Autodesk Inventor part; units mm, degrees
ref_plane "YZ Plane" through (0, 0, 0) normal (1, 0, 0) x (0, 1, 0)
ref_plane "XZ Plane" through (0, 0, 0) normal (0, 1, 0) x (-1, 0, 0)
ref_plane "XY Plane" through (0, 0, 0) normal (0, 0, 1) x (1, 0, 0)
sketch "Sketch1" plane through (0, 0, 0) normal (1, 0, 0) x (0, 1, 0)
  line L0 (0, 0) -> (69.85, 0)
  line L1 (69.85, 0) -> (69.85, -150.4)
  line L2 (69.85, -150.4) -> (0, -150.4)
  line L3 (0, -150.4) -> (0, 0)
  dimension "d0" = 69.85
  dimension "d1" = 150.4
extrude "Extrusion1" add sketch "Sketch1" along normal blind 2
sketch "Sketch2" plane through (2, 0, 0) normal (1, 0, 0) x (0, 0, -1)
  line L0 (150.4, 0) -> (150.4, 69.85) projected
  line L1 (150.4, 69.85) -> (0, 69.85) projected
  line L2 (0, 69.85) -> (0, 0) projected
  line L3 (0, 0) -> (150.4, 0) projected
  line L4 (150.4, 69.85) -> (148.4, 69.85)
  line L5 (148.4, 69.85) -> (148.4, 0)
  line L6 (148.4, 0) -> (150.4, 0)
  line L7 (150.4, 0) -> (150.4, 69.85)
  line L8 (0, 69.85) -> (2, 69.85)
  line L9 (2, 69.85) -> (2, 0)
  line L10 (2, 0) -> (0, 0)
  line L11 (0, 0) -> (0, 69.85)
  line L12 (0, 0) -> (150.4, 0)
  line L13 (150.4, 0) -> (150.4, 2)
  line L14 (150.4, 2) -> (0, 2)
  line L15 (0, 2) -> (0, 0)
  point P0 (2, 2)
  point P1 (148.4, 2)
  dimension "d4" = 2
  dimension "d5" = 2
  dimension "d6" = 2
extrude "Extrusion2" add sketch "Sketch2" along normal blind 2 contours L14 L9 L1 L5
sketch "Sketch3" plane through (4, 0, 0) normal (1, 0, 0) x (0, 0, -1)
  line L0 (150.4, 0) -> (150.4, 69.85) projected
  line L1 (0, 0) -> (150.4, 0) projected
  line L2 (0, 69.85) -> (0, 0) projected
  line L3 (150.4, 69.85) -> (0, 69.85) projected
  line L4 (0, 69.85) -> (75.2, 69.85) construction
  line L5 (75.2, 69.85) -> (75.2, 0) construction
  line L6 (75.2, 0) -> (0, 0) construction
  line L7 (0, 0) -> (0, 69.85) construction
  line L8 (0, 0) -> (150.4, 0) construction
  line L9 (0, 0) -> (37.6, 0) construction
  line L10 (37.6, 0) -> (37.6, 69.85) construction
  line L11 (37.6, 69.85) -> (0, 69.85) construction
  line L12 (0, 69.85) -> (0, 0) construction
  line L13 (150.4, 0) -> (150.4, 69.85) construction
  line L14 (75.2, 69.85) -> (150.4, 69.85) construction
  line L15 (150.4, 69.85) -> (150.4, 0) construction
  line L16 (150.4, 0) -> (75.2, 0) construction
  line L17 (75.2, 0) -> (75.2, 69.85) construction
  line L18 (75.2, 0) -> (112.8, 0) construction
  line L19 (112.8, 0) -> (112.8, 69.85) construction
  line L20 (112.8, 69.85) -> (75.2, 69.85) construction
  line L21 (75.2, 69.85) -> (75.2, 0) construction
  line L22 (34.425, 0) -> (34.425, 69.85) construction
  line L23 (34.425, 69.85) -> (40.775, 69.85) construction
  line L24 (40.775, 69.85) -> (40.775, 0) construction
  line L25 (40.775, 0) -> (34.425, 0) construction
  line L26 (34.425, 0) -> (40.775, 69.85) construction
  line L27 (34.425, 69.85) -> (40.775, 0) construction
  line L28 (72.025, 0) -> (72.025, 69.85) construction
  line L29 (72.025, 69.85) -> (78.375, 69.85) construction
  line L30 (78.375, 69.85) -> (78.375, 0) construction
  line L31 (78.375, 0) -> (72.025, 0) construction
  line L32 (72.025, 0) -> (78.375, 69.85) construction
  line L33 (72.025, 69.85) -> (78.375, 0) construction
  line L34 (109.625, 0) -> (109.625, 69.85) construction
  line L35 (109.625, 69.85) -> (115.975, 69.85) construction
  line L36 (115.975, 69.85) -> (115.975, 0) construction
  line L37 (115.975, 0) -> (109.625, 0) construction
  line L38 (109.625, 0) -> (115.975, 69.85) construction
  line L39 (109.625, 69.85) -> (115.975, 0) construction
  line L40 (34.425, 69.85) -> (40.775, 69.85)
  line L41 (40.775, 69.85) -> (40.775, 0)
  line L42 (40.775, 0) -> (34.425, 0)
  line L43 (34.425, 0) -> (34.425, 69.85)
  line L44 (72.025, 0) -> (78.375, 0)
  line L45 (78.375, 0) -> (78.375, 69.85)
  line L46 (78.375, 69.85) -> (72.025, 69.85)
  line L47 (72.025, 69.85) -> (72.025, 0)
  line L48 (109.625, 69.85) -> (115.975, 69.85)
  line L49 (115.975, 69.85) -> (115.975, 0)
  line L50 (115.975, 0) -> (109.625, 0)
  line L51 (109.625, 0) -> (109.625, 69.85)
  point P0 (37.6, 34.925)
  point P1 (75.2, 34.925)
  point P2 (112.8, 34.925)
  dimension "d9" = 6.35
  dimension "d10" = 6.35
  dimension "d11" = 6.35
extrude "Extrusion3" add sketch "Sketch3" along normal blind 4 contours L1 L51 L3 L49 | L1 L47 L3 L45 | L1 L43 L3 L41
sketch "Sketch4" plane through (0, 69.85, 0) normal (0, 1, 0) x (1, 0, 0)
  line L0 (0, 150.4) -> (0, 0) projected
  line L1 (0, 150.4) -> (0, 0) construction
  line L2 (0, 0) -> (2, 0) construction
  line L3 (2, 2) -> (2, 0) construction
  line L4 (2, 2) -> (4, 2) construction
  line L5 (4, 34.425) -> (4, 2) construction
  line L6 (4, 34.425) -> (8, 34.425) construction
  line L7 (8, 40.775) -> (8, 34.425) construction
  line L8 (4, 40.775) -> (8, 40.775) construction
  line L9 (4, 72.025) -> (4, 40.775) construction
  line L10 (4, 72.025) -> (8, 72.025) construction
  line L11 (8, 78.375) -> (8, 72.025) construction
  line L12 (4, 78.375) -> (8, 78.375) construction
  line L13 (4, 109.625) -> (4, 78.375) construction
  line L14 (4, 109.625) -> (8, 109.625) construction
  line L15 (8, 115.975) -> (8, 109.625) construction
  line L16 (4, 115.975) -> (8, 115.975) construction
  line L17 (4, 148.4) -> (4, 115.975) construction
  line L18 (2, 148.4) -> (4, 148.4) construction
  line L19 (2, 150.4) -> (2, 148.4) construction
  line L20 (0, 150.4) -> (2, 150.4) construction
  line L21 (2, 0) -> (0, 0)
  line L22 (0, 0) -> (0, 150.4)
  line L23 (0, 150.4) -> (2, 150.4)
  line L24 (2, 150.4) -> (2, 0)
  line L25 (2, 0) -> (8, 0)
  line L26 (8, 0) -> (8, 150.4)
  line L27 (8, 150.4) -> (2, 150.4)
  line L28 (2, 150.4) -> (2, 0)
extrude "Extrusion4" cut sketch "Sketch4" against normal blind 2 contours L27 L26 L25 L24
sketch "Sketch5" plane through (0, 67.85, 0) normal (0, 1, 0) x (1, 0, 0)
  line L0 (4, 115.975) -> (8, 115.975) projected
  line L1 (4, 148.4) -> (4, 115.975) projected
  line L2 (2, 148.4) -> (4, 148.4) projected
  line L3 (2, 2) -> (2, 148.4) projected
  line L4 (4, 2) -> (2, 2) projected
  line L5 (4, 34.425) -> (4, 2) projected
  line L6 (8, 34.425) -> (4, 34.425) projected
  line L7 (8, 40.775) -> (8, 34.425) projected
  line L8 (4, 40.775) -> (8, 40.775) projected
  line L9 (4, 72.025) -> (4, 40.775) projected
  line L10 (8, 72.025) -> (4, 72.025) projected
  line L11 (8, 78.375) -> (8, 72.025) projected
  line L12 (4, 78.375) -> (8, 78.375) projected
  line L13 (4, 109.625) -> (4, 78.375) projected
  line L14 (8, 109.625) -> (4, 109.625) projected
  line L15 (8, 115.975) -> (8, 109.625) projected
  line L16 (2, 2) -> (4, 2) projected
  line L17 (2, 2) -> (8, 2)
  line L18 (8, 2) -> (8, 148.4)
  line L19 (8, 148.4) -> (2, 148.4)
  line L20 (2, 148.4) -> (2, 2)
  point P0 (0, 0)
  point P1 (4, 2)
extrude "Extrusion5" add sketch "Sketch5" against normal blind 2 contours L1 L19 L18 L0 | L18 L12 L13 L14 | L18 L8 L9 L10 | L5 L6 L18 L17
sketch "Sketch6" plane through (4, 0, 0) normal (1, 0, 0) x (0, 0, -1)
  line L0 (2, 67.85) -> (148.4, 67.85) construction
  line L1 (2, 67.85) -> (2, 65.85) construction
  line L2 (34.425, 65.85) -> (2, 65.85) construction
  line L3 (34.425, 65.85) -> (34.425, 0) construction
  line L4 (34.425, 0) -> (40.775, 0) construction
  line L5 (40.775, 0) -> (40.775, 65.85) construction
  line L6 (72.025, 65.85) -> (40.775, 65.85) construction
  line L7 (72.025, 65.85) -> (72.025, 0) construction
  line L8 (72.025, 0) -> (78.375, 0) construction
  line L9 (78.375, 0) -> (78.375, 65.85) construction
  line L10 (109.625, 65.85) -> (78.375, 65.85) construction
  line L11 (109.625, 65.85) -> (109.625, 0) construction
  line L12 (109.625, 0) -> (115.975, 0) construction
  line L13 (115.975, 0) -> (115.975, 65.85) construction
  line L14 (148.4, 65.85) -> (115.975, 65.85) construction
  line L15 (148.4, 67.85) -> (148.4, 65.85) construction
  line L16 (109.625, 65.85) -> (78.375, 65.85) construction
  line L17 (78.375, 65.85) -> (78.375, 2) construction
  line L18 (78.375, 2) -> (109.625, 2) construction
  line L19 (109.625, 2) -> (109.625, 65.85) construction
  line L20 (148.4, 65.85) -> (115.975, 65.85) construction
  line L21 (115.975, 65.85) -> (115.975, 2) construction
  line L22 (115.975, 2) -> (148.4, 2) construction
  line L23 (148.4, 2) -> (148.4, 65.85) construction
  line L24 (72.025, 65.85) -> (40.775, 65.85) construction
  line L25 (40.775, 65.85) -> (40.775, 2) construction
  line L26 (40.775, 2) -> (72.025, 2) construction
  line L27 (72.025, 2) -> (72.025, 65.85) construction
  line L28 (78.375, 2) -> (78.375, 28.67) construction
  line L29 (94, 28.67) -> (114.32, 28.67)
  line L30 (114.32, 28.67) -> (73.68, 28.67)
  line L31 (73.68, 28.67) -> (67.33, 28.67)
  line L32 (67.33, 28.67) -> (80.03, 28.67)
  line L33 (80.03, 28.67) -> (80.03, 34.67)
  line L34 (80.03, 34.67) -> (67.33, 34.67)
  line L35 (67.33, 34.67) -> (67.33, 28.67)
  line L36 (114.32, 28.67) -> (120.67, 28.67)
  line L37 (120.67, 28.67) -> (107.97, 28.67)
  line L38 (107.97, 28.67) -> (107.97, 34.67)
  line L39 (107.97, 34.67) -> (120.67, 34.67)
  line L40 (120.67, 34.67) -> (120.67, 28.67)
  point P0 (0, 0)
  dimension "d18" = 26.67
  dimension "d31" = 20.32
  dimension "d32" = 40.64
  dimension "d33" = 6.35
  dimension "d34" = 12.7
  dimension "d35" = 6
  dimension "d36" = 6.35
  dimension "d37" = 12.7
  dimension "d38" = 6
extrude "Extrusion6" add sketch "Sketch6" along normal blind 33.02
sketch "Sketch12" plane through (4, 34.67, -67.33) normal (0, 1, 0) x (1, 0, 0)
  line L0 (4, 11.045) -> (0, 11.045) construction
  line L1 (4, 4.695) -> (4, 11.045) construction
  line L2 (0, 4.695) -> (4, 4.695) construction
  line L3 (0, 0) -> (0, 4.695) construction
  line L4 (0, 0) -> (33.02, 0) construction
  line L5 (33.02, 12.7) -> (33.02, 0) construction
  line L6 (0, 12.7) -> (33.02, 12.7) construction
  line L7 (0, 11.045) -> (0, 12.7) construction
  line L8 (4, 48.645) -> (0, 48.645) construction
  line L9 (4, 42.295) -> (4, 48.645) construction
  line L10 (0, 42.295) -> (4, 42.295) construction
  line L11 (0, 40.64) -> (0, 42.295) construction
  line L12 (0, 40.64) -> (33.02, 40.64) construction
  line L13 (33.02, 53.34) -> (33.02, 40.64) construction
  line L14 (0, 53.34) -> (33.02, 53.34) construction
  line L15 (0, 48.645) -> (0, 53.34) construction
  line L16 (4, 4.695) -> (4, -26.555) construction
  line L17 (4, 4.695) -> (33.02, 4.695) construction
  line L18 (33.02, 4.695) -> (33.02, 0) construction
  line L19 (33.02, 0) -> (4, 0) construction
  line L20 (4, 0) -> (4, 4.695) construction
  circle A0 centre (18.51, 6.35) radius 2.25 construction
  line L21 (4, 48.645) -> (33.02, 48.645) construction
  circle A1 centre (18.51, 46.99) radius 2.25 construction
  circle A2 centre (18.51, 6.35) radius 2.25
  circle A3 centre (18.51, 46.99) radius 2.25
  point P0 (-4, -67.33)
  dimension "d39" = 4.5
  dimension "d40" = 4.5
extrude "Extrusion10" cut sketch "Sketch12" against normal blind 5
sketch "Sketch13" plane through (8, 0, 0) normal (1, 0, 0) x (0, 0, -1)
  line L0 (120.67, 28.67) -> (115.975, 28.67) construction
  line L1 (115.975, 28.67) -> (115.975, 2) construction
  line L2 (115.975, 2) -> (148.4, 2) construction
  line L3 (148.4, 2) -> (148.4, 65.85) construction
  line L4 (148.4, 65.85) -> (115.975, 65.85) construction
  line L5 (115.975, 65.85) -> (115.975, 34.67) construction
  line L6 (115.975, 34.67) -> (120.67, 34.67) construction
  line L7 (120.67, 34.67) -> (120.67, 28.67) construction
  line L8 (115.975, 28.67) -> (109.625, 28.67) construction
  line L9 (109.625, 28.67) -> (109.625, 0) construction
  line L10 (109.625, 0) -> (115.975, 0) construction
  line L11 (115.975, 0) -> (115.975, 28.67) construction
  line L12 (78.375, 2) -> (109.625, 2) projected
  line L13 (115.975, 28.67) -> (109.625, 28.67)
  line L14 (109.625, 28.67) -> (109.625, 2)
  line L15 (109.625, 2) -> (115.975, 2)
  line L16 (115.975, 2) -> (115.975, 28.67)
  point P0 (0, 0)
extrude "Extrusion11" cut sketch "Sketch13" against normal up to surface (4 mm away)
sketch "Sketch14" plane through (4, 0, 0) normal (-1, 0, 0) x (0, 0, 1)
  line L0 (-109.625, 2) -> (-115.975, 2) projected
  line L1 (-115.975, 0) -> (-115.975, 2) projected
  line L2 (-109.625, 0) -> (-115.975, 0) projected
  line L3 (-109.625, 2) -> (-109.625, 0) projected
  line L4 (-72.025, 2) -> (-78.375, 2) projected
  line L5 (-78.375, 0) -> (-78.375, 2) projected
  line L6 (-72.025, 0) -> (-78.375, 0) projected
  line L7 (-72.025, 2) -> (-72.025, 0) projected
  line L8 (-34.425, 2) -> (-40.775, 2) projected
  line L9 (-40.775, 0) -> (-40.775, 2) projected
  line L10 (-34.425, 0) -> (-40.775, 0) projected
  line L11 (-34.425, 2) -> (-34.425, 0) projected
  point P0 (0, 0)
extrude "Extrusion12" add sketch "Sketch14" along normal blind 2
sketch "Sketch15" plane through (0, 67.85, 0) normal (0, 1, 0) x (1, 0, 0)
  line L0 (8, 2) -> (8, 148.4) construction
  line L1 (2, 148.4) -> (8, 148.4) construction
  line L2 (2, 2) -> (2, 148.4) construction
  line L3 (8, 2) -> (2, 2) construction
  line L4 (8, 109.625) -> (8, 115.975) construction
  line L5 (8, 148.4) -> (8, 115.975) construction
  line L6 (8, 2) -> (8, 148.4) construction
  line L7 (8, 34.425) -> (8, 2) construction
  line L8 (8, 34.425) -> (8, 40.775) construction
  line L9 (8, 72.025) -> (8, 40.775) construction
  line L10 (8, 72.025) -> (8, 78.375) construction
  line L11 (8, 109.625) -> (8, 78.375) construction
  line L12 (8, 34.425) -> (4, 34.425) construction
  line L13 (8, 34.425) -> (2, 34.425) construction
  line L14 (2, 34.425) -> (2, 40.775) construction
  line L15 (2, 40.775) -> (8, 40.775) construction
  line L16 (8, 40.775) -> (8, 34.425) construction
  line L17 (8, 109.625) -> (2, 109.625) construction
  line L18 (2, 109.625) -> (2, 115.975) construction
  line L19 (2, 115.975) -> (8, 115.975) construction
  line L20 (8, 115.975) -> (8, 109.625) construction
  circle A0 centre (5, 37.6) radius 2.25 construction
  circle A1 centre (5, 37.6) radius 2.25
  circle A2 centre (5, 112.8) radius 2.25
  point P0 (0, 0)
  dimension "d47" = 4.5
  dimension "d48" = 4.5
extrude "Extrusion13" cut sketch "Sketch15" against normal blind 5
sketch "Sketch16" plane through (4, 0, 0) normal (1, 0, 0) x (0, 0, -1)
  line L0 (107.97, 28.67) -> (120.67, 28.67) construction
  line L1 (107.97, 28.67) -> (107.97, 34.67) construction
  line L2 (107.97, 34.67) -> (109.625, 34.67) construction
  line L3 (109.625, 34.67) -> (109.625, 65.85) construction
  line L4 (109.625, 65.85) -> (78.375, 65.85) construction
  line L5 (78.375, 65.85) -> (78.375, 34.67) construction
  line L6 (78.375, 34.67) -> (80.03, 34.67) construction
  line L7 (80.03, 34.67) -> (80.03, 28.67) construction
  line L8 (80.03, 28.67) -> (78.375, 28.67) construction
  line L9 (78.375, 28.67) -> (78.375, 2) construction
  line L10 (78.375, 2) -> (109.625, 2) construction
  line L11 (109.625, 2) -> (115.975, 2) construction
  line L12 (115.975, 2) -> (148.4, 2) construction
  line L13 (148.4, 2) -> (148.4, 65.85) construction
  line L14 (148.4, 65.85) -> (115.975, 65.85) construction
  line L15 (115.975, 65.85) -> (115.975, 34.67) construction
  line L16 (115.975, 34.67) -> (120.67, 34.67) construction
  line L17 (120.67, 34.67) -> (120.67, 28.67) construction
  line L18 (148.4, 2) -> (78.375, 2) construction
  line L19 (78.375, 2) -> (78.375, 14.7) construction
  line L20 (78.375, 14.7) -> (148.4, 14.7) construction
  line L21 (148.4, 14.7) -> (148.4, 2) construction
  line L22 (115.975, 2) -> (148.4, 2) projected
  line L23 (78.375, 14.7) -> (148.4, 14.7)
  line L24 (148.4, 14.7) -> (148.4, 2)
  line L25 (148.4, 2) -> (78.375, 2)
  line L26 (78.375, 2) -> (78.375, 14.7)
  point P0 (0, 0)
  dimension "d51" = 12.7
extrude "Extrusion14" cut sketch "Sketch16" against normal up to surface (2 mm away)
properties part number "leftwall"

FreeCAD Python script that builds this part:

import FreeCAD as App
import Part
import Sketcher

V = App.Vector
Q = App.Units.Quantity

doc = App.newDocument("Part")
body = doc.addObject("PartDesign::Body", "Body")
body.AllowCompound = True

# Sketch on YZ plane
sketch1 = body.newObject("Sketcher::SketchObject", "Sketch")
sketch1.AttachmentSupport = (doc.getObject("YZ_Plane"), [""])
sketch1.MapMode = "FlatFace"
sketch1.addGeometry([
    Part.LineSegment(V(70, 0, 0), V(0, 0, 0)),
    Part.LineSegment(V(0, 0, 0), V(0, -150, 0)),
    Part.LineSegment(V(0, -150, 0), V(70, -150, 0)),
    Part.LineSegment(V(70, -150, 0), V(70, 0, 0)),
], False)
sketch1.addConstraint([
    Sketcher.Constraint("Coincident", 0, 2, 1, 1),
    Sketcher.Constraint("Coincident", 1, 2, 2, 1),
    Sketcher.Constraint("Coincident", 2, 2, 3, 1),
    Sketcher.Constraint("Coincident", 3, 2, 0, 1),
    Sketcher.Constraint("Horizontal", 0),
    Sketcher.Constraint("Vertical", 1),
    Sketcher.Constraint("Horizontal", 2),
    Sketcher.Constraint("Vertical", 3),
    Sketcher.Constraint("Coincident", 0, 2, -1, 1),
    Sketcher.Constraint("DistanceY", 1, 2, 1, 1, Q("150.4 mm")),
    Sketcher.Constraint("DistanceX", 0, 2, 0, 1, Q("69.85 mm")),
])
pad1 = body.newObject("PartDesign::Pad", "Pad")
pad1.Profile = sketch1
pad1.Length = 2

# Sketch on YZ plane
sketch2 = body.newObject("Sketcher::SketchObject", "Sketch001")
sketch2.AttachmentSupport = (doc.getObject("YZ_Plane"), [""])
sketch2.MapMode = "FlatFace"
sketch2.AttachmentOffset = App.Placement(V(0, 0, 2), App.Rotation())
sketch2.addGeometry([
    Part.LineSegment(V(2, -2, 0), V(2, -148, 0)),
    Part.LineSegment(V(2, -148, 0), V(70, -148, 0)),
    Part.LineSegment(V(70, -148, 0), V(70, -2, 0)),
    Part.LineSegment(V(70, -2, 0), V(2, -2, 0)),
], False)
sketch2.addConstraint([
    Sketcher.Constraint("Coincident", 0, 2, 1, 1),
    Sketcher.Constraint("Coincident", 1, 2, 2, 1),
    Sketcher.Constraint("Coincident", 2, 2, 3, 1),
    Sketcher.Constraint("Coincident", 3, 2, 0, 1),
    Sketcher.Constraint("Vertical", 0),
    Sketcher.Constraint("Horizontal", 1),
    Sketcher.Constraint("Vertical", 2),
    Sketcher.Constraint("Horizontal", 3),
    Sketcher.Constraint("DistanceX", -1, 1, 0, 2, Q("2 mm")),
    Sketcher.Constraint("DistanceY", 2, 2, -1, 1, Q("2 mm")),
    Sketcher.Constraint("DistanceY", 0, 2, 0, 1, Q("146.4 mm")),
    Sketcher.Constraint("DistanceX", 1, 1, 1, 2, Q("67.85 mm")),
])
pad2 = body.newObject("PartDesign::Pad", "Pad001")
pad2.Profile = sketch2
pad2.Length = 2

# Sketch on YZ plane
sketch3 = body.newObject("Sketcher::SketchObject", "Sketch002")
sketch3.AttachmentSupport = (doc.getObject("YZ_Plane"), [""])
sketch3.MapMode = "FlatFace"
sketch3.AttachmentOffset = App.Placement(V(0, 0, 4), App.Rotation())
sketch3.addGeometry([
    Part.LineSegment(V(0, -110, 0), V(0, -116, 0)),  # 0
    Part.LineSegment(V(0, -116, 0), V(70, -116, 0)),  # 1
    Part.LineSegment(V(70, -116, 0), V(70, -110, 0)),  # 2
    Part.LineSegment(V(70, -110, 0), V(0, -110, 0)),  # 3
    Part.LineSegment(V(0, -72, 0), V(0, -78, 0)),  # 4
    Part.LineSegment(V(0, -78, 0), V(70, -78, 0)),  # 5
    Part.LineSegment(V(70, -78, 0), V(70, -72, 0)),  # 6
    Part.LineSegment(V(70, -72, 0), V(0, -72, 0)),  # 7
    Part.LineSegment(V(0, -34, 0), V(0, -41, 0)),  # 8
    Part.LineSegment(V(0, -41, 0), V(70, -41, 0)),  # 9
    Part.LineSegment(V(70, -41, 0), V(70, -34, 0)),  # 10
    Part.LineSegment(V(70, -34, 0), V(0, -34, 0)),  # 11
], False)
sketch3.addConstraint([
    Sketcher.Constraint("Coincident", 0, 2, 1, 1),
    Sketcher.Constraint("Coincident", 1, 2, 2, 1),
    Sketcher.Constraint("Coincident", 2, 2, 3, 1),
    Sketcher.Constraint("Coincident", 3, 2, 0, 1),
    Sketcher.Constraint("Coincident", 4, 2, 5, 1),
    Sketcher.Constraint("Coincident", 5, 2, 6, 1),
    Sketcher.Constraint("Coincident", 6, 2, 7, 1),
    Sketcher.Constraint("Coincident", 7, 2, 4, 1),
    Sketcher.Constraint("Coincident", 8, 2, 9, 1),
    Sketcher.Constraint("Coincident", 9, 2, 10, 1),
    Sketcher.Constraint("Coincident", 10, 2, 11, 1),
    Sketcher.Constraint("Coincident", 11, 2, 8, 1),
    Sketcher.Constraint("Vertical", 0),
    Sketcher.Constraint("Horizontal", 1),
    Sketcher.Constraint("Vertical", 2),
    Sketcher.Constraint("Horizontal", 3),
    Sketcher.Constraint("Vertical", 4),
    Sketcher.Constraint("Horizontal", 5),
    Sketcher.Constraint("Vertical", 6),
    Sketcher.Constraint("Horizontal", 7),
    Sketcher.Constraint("Vertical", 8),
    Sketcher.Constraint("Horizontal", 9),
    Sketcher.Constraint("Vertical", 10),
    Sketcher.Constraint("Horizontal", 11),
    Sketcher.Constraint("PointOnObject", 0, 2, -2),
    Sketcher.Constraint("PointOnObject", 4, 2, -2),
    Sketcher.Constraint("PointOnObject", 8, 2, -2),
    Sketcher.Constraint("Vertical", 2, 2, 5, 2),
    Sketcher.Constraint("Vertical", 6, 2, 9, 2),
    Sketcher.Constraint("Equal", 2, 4),
    Sketcher.Constraint("Equal", 6, 8),
    Sketcher.Constraint("DistanceY", 0, 2, 0, 1, Q("6.35 mm")),
    Sketcher.Constraint("DistanceX", 1, 1, 1, 2, Q("69.85 mm")),
    Sketcher.Constraint("DistanceY", 0, 2, 4, 2, Q("37.6 mm")),
    Sketcher.Constraint("DistanceY", 4, 2, 8, 2, Q("37.6 mm")),
    Sketcher.Constraint("DistanceY", 0, 2, -1, 1, Q("115.975 mm")),
])
pad3 = body.newObject("PartDesign::Pad", "Pad002")
pad3.Profile = sketch3
pad3.Length = 4

# Sketch on XZ plane
sketch4 = body.newObject("Sketcher::SketchObject", "Sketch003")
sketch4.AttachmentSupport = (doc.getObject("XZ_Plane"), [""])
sketch4.MapMode = "FlatFace"
sketch4.AttachmentOffset = App.Placement(V(0, 0, -69.85), App.Rotation())
sketch4.addGeometry([
    Part.LineSegment(V(8, -150, 0), V(2, -150, 0)),
    Part.LineSegment(V(2, -150, 0), V(2, 0, 0)),
    Part.LineSegment(V(2, 0, 0), V(8, 0, 0)),
    Part.LineSegment(V(8, 0, 0), V(8, -150, 0)),
], False)
sketch4.addConstraint([
    Sketcher.Constraint("Coincident", 0, 2, 1, 1),
    Sketcher.Constraint("Coincident", 1, 2, 2, 1),
    Sketcher.Constraint("Coincident", 2, 2, 3, 1),
    Sketcher.Constraint("Coincident", 3, 2, 0, 1),
    Sketcher.Constraint("Horizontal", 0),
    Sketcher.Constraint("Vertical", 1),
    Sketcher.Constraint("Horizontal", 2),
    Sketcher.Constraint("Vertical", 3),
    Sketcher.Constraint("PointOnObject", 1, 2, -1),
    Sketcher.Constraint("DistanceX", 0, 2, 0, 1, Q("6 mm")),
    Sketcher.Constraint("DistanceY", 1, 1, 1, 2, Q("150.4 mm")),
    Sketcher.Constraint("DistanceX", -1, 1, 0, 2, Q("2 mm")),
])
pocket1 = body.newObject("PartDesign::Pocket", "Pocket")
pocket1.Profile = sketch4
pocket1.Length = 2
pocket1.Reversed = True

# Sketch on XZ plane
sketch5 = body.newObject("Sketcher::SketchObject", "Sketch004")
sketch5.AttachmentSupport = (doc.getObject("XZ_Plane"), [""])
sketch5.MapMode = "FlatFace"
sketch5.AttachmentOffset = App.Placement(V(0, 0, -67.85), App.Rotation())
sketch5.addGeometry([
    Part.LineSegment(V(4, -148.4, 0), V(4, -116, 0)),  # 0
    Part.LineSegment(V(4, -116, 0), V(8, -116, 0)),  # 1
    Part.LineSegment(V(8, -116, 0), V(8, -148.4, 0)),  # 2
    Part.LineSegment(V(8, -148.4, 0), V(4, -148.4, 0)),  # 3
    Part.LineSegment(V(8, -78.4, 0), V(8, -109.6, 0)),  # 4
    Part.LineSegment(V(8, -109.6, 0), V(4, -109.6, 0)),  # 5
    Part.LineSegment(V(4, -109.6, 0), V(4, -78.4, 0)),  # 6
    Part.LineSegment(V(4, -78.4, 0), V(8, -78.4, 0)),  # 7
    Part.LineSegment(V(8, -40.8, 0), V(8, -72, 0)),  # 8
    Part.LineSegment(V(8, -72, 0), V(4, -72, 0)),  # 9
    Part.LineSegment(V(4, -72, 0), V(4, -40.8, 0)),  # 10
    Part.LineSegment(V(4, -40.8, 0), V(8, -40.8, 0)),  # 11
    Part.LineSegment(V(4, -34.4, 0), V(4, -2, 0)),  # 12
    Part.LineSegment(V(4, -2, 0), V(8, -2, 0)),  # 13
    Part.LineSegment(V(8, -2, 0), V(8, -34.4, 0)),  # 14
    Part.LineSegment(V(8, -34.4, 0), V(4, -34.4, 0)),  # 15
], False)
sketch5.addConstraint([
    Sketcher.Constraint("Coincident", 0, 2, 1, 1),
    Sketcher.Constraint("Coincident", 1, 2, 2, 1),
    Sketcher.Constraint("Coincident", 2, 2, 3, 1),
    Sketcher.Constraint("Coincident", 3, 2, 0, 1),
    Sketcher.Constraint("Coincident", 4, 2, 5, 1),
    Sketcher.Constraint("Coincident", 5, 2, 6, 1),
    Sketcher.Constraint("Coincident", 6, 2, 7, 1),
    Sketcher.Constraint("Coincident", 7, 2, 4, 1),
    Sketcher.Constraint("Coincident", 8, 2, 9, 1),
    Sketcher.Constraint("Coincident", 9, 2, 10, 1),
    Sketcher.Constraint("Coincident", 10, 2, 11, 1),
    Sketcher.Constraint("Coincident", 11, 2, 8, 1),
    Sketcher.Constraint("Coincident", 12, 2, 13, 1),
    Sketcher.Constraint("Coincident", 13, 2, 14, 1),
    Sketcher.Constraint("Coincident", 14, 2, 15, 1),
    Sketcher.Constraint("Coincident", 15, 2, 12, 1),
    Sketcher.Constraint("Vertical", 0),
    Sketcher.Constraint("Horizontal", 1),
    Sketcher.Constraint("Vertical", 2),
    Sketcher.Constraint("Horizontal", 3),
    Sketcher.Constraint("Vertical", 4),
    Sketcher.Constraint("Horizontal", 5),
    Sketcher.Constraint("Vertical", 6),
    Sketcher.Constraint("Horizontal", 7),
    Sketcher.Constraint("Vertical", 8),
    Sketcher.Constraint("Horizontal", 9),
    Sketcher.Constraint("Vertical", 10),
    Sketcher.Constraint("Horizontal", 11),
    Sketcher.Constraint("Vertical", 12),
    Sketcher.Constraint("Horizontal", 13),
    Sketcher.Constraint("Vertical", 14),
    Sketcher.Constraint("Horizontal", 15),
    Sketcher.Constraint("Vertical", 2, 2, 4, 2),
    Sketcher.Constraint("Vertical", 3, 2, 5, 2),
    Sketcher.Constraint("Vertical", 7, 2, 8, 2),
    Sketcher.Constraint("Vertical", 6, 2, 9, 2),
    Sketcher.Constraint("Vertical", 10, 2, 12, 2),
    Sketcher.Constraint("Vertical", 11, 2, 13, 2),
    Sketcher.Constraint("Equal", 6, 8),
    Sketcher.Constraint("Equal", 2, 12),
    Sketcher.Constraint("DistanceX", 1, 1, 1, 2, Q("4 mm")),
    Sketcher.Constraint("DistanceX", -1, 1, 0, 2, Q("4 mm")),
    Sketcher.Constraint("DistanceY", 12, 2, -1, 1, Q("2 mm")),
    Sketcher.Constraint("DistanceY", 4, 2, 4, 1, Q("31.25 mm")),
    Sketcher.Constraint("DistanceY", 2, 2, -1, 1, Q("148.4 mm")),
    Sketcher.Constraint("DistanceY", 0, 2, 6, 2, Q("37.6 mm")),
    Sketcher.Constraint("DistanceY", 4, 2, 8, 2, Q("37.6 mm")),
    Sketcher.Constraint("DistanceY", 8, 2, 14, 2, Q("37.6 mm")),
])
pad4 = body.newObject("PartDesign::Pad", "Pad003")
pad4.Profile = sketch5
pad4.Length = 2

# Sketch on YZ plane
sketch6 = body.newObject("Sketcher::SketchObject", "Sketch005")
sketch6.AttachmentSupport = (doc.getObject("YZ_Plane"), [""])
sketch6.MapMode = "FlatFace"
sketch6.AttachmentOffset = App.Placement(V(0, 0, 4), App.Rotation())
sketch6.addGeometry([
    Part.LineSegment(V(35, -108, 0), V(29, -108, 0)),  # 0
    Part.LineSegment(V(29, -108, 0), V(29, -121, 0)),  # 1
    Part.LineSegment(V(29, -121, 0), V(35, -121, 0)),  # 2
    Part.LineSegment(V(35, -121, 0), V(35, -108, 0)),  # 3
    Part.LineSegment(V(29, -67, 0), V(29, -80, 0)),  # 4
    Part.LineSegment(V(29, -80, 0), V(35, -80, 0)),  # 5
    Part.LineSegment(V(35, -80, 0), V(35, -67, 0)),  # 6
    Part.LineSegment(V(35, -67, 0), V(29, -67, 0)),  # 7
], False)
sketch6.addConstraint([
    Sketcher.Constraint("Coincident", 0, 2, 1, 1),
    Sketcher.Constraint("Coincident", 1, 2, 2, 1),
    Sketcher.Constraint("Coincident", 2, 2, 3, 1),
    Sketcher.Constraint("Coincident", 3, 2, 0, 1),
    Sketcher.Constraint("Coincident", 4, 2, 5, 1),
    Sketcher.Constraint("Coincident", 5, 2, 6, 1),
    Sketcher.Constraint("Coincident", 6, 2, 7, 1),
    Sketcher.Constraint("Coincident", 7, 2, 4, 1),
    Sketcher.Constraint("Horizontal", 0),
    Sketcher.Constraint("Vertical", 1),
    Sketcher.Constraint("Horizontal", 2),
    Sketcher.Constraint("Vertical", 3),
    Sketcher.Constraint("Vertical", 4),
    Sketcher.Constraint("Horizontal", 5),
    Sketcher.Constraint("Vertical", 6),
    Sketcher.Constraint("Horizontal", 7),
    Sketcher.Constraint("Vertical", 1, 2, 4, 2),
    Sketcher.Constraint("Vertical", 3, 2, 5, 2),
    Sketcher.Constraint("Equal", 3, 4),
    Sketcher.Constraint("DistanceX", 0, 2, 0, 1, Q("6 mm")),
    Sketcher.Constraint("DistanceY", 1, 2, 1, 1, Q("12.7 mm")),
    Sketcher.Constraint("DistanceY", 1, 2, 4, 2, Q("40.64 mm")),
    Sketcher.Constraint("DistanceX", -1, 1, 0, 2, Q("28.67 mm")),
    Sketcher.Constraint("DistanceY", 0, 2, -1, 1, Q("107.97 mm")),
])
pad5 = body.newObject("PartDesign::Pad", "Pad004")
pad5.Profile = sketch6
pad5.Length = 33.02

# Sketch on XZ plane
sketch7 = body.newObject("Sketcher::SketchObject", "Sketch006")
sketch7.AttachmentSupport = (doc.getObject("XZ_Plane"), [""])
sketch7.MapMode = "FlatFace"
sketch7.AttachmentOffset = App.Placement(V(0, 0, -34.67), App.Rotation())
sketch7.addGeometry([
    Part.Circle(V(22.5, -73.7, 0), V(0, 0, 1), 2.2),
    Part.Circle(V(22.5, -114.3, 0), V(0, 0, 1), 2.2),
], False)
sketch7.addConstraint([
    Sketcher.Constraint("Equal", 0, 1),
    Sketcher.Constraint("Vertical", 0, 3, 1, 3),
    Sketcher.Constraint("Diameter", 0, Q("4.5 mm")),
    Sketcher.Constraint("DistanceX", -1, 1, 0, 3, Q("22.51 mm")),
    Sketcher.Constraint("DistanceY", 0, 3, -1, 1, Q("73.68 mm")),
    Sketcher.Constraint("DistanceY", 1, 3, -1, 1, Q("114.32 mm")),
])
pocket2 = body.newObject("PartDesign::Pocket", "Pocket001")
pocket2.Profile = sketch7
pocket2.Length = 5
pocket2.Reversed = True

# Sketch on YZ plane
sketch8 = body.newObject("Sketcher::SketchObject", "Sketch007")
sketch8.AttachmentSupport = (doc.getObject("YZ_Plane"), [""])
sketch8.MapMode = "FlatFace"
sketch8.AttachmentOffset = App.Placement(V(0, 0, 8), App.Rotation())
sketch8.addGeometry([
    Part.LineSegment(V(2, -116, 0), V(29, -116, 0)),
    Part.LineSegment(V(29, -116, 0), V(29, -110, 0)),
    Part.LineSegment(V(29, -110, 0), V(2, -110, 0)),
    Part.LineSegment(V(2, -110, 0), V(2, -116, 0)),
], False)
sketch8.addConstraint([
    Sketcher.Constraint("Coincident", 0, 2, 1, 1),
    Sketcher.Constraint("Coincident", 1, 2, 2, 1),
    Sketcher.Constraint("Coincident", 2, 2, 3, 1),
    Sketcher.Constraint("Coincident", 3, 2, 0, 1),
    Sketcher.Constraint("Horizontal", 0),
    Sketcher.Constraint("Vertical", 1),
    Sketcher.Constraint("Horizontal", 2),
    Sketcher.Constraint("Vertical", 3),
    Sketcher.Constraint("DistanceX", -1, 1, 2, 2, Q("2 mm")),
    Sketcher.Constraint("DistanceX", 0, 1, 0, 2, Q("26.67 mm")),
    Sketcher.Constraint("DistanceY", 1, 1, 1, 2, Q("6.35 mm")),
    Sketcher.Constraint("DistanceY", 0, 2, -1, 1, Q("115.975 mm")),
])
pocket3 = body.newObject("PartDesign::Pocket", "Pocket002")
pocket3.Profile = sketch8
pocket3.Length = 4

# Sketch on YZ plane
sketch9 = body.newObject("Sketcher::SketchObject", "Sketch008")
sketch9.AttachmentSupport = (doc.getObject("YZ_Plane"), [""])
sketch9.MapMode = "FlatFace"
sketch9.AttachmentOffset = App.Placement(V(0, 0, 4), App.Rotation())
sketch9.addGeometry([
    Part.LineSegment(V(0, -109.6, 0), V(2, -109.6, 0)),  # 0
    Part.LineSegment(V(2, -109.6, 0), V(2, -116, 0)),  # 1
    Part.LineSegment(V(2, -116, 0), V(0, -116, 0)),  # 2
    Part.LineSegment(V(0, -116, 0), V(0, -109.6, 0)),  # 3
    Part.LineSegment(V(0, -72, 0), V(2, -72, 0)),  # 4
    Part.LineSegment(V(2, -72, 0), V(2, -78.4, 0)),  # 5
    Part.LineSegment(V(2, -78.4, 0), V(0, -78.4, 0)),  # 6
    Part.LineSegment(V(0, -78.4, 0), V(0, -72, 0)),  # 7
    Part.LineSegment(V(0, -34.4, 0), V(2, -34.4, 0)),  # 8
    Part.LineSegment(V(2, -34.4, 0), V(2, -40.8, 0)),  # 9
    Part.LineSegment(V(2, -40.8, 0), V(0, -40.8, 0)),  # 10
    Part.LineSegment(V(0, -40.8, 0), V(0, -34.4, 0)),  # 11
], False)
sketch9.addConstraint([
    Sketcher.Constraint("Coincident", 0, 2, 1, 1),
    Sketcher.Constraint("Coincident", 1, 2, 2, 1),
    Sketcher.Constraint("Coincident", 2, 2, 3, 1),
    Sketcher.Constraint("Coincident", 3, 2, 0, 1),
    Sketcher.Constraint("Coincident", 4, 2, 5, 1),
    Sketcher.Constraint("Coincident", 5, 2, 6, 1),
    Sketcher.Constraint("Coincident", 6, 2, 7, 1),
    Sketcher.Constraint("Coincident", 7, 2, 4, 1),
    Sketcher.Constraint("Coincident", 8, 2, 9, 1),
    Sketcher.Constraint("Coincident", 9, 2, 10, 1),
    Sketcher.Constraint("Coincident", 10, 2, 11, 1),
    Sketcher.Constraint("Coincident", 11, 2, 8, 1),
    Sketcher.Constraint("Horizontal", 0),
    Sketcher.Constraint("Vertical", 1),
    Sketcher.Constraint("Horizontal", 2),
    Sketcher.Constraint("Vertical", 3),
    Sketcher.Constraint("Horizontal", 4),
    Sketcher.Constraint("Vertical", 5),
    Sketcher.Constraint("Horizontal", 6),
    Sketcher.Constraint("Vertical", 7),
    Sketcher.Constraint("Horizontal", 8),
    Sketcher.Constraint("Vertical", 9),
    Sketcher.Constraint("Horizontal", 10),
    Sketcher.Constraint("Vertical", 11),
    Sketcher.Constraint("PointOnObject", 2, 2, -2),
    Sketcher.Constraint("PointOnObject", 6, 2, -2),
    Sketcher.Constraint("PointOnObject", 10, 2, -2),
    Sketcher.Constraint("Vertical", 1, 2, 4, 2),
    Sketcher.Constraint("Vertical", 5, 2, 8, 2),
    Sketcher.Constraint("Equal", 3, 5),
    Sketcher.Constraint("Equal", 7, 9),
    Sketcher.Constraint("DistanceX", 0, 1, 0, 2, Q("2 mm")),
    Sketcher.Constraint("DistanceY", 1, 2, 1, 1, Q("6.35 mm")),
    Sketcher.Constraint("DistanceY", 0, 2, 4, 2, Q("37.6 mm")),
    Sketcher.Constraint("DistanceY", 4, 2, 8, 2, Q("37.6 mm")),
    Sketcher.Constraint("DistanceY", 0, 2, -1, 1, Q("109.625 mm")),
])
pad6 = body.newObject("PartDesign::Pad", "Pad005")
pad6.Profile = sketch9
pad6.Length = 2
pad6.Reversed = True

# Sketch on XZ plane
sketch10 = body.newObject("Sketcher::SketchObject", "Sketch009")
sketch10.AttachmentSupport = (doc.getObject("XZ_Plane"), [""])
sketch10.MapMode = "FlatFace"
sketch10.AttachmentOffset = App.Placement(V(0, 0, -67.85), App.Rotation())
sketch10.addGeometry([
    Part.Circle(V(5, -37.6, 0), V(0, 0, 1), 2.2),
    Part.Circle(V(5, -112.8, 0), V(0, 0, 1), 2.2),
], False)
sketch10.addConstraint([
    Sketcher.Constraint("Equal", 0, 1),
    Sketcher.Constraint("Vertical", 0, 3, 1, 3),
    Sketcher.Constraint("Diameter", 0, Q("4.5 mm")),
    Sketcher.Constraint("DistanceX", -1, 1, 0, 3, Q("5 mm")),
    Sketcher.Constraint("DistanceY", 0, 3, -1, 1, Q("37.6 mm")),
    Sketcher.Constraint("DistanceY", 1, 3, -1, 1, Q("112.8 mm")),
])
pocket4 = body.newObject("PartDesign::Pocket", "Pocket003")
pocket4.Profile = sketch10
pocket4.Length = 5
pocket4.Reversed = True

# Sketch on YZ plane
sketch11 = body.newObject("Sketcher::SketchObject", "Sketch010")
sketch11.AttachmentSupport = (doc.getObject("YZ_Plane"), [""])
sketch11.MapMode = "FlatFace"
sketch11.AttachmentOffset = App.Placement(V(0, 0, 4), App.Rotation())
sketch11.addGeometry([
    Part.LineSegment(V(2, -78, 0), V(2, -148, 0)),
    Part.LineSegment(V(2, -148, 0), V(15, -148, 0)),
    Part.LineSegment(V(15, -148, 0), V(15, -78, 0)),
    Part.LineSegment(V(15, -78, 0), V(2, -78, 0)),
], False)
sketch11.addConstraint([
    Sketcher.Constraint("Coincident", 0, 2, 1, 1),
    Sketcher.Constraint("Coincident", 1, 2, 2, 1),
    Sketcher.Constraint("Coincident", 2, 2, 3, 1),
    Sketcher.Constraint("Coincident", 3, 2, 0, 1),
    Sketcher.Constraint("Vertical", 0),
    Sketcher.Constraint("Horizontal", 1),
    Sketcher.Constraint("Vertical", 2),
    Sketcher.Constraint("Horizontal", 3),
    Sketcher.Constraint("DistanceX", 1, 1, 1, 2, Q("12.7 mm")),
    Sketcher.Constraint("DistanceX", -1, 1, 0, 2, Q("2 mm")),
    Sketcher.Constraint("DistanceY", 0, 2, -1, 1, Q("148.4 mm")),
    Sketcher.Constraint("DistanceY", 0, 2, 0, 1, Q("70.025 mm")),
])
pocket5 = body.newObject("PartDesign::Pocket", "Pocket004")
pocket5.Profile = sketch11
pocket5.Length = 2

doc.recompute()
